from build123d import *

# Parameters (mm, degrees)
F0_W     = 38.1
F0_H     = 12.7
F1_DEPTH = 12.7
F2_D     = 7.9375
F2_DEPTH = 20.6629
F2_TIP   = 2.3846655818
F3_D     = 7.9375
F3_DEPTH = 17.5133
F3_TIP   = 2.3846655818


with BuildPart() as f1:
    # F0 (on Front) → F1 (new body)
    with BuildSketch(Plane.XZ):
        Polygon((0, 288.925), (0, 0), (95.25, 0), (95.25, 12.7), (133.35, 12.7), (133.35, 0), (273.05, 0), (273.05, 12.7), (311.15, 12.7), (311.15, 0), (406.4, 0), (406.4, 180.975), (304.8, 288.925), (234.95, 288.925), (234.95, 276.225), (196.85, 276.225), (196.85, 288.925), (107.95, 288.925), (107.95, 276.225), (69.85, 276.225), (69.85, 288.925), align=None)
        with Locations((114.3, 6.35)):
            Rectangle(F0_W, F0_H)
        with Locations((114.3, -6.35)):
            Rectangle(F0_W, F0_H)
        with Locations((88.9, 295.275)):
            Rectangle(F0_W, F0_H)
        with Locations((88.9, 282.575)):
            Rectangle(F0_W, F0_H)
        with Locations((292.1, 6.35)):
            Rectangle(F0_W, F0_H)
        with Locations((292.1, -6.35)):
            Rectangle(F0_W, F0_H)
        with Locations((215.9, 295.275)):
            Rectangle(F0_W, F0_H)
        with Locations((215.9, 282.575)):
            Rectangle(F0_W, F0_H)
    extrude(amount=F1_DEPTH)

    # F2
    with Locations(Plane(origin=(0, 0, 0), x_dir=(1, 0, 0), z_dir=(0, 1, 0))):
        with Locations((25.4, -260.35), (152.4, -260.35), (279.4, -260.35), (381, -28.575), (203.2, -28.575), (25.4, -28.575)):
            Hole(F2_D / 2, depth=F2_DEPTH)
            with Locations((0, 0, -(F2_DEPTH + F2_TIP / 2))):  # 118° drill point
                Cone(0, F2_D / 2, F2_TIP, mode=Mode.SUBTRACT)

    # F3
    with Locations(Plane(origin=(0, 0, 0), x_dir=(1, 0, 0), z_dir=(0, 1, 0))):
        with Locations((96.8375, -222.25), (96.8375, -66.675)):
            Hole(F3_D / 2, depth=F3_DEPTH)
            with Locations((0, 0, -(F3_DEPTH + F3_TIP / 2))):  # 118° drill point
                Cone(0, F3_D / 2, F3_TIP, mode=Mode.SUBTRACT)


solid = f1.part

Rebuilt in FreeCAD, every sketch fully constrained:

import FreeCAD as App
import Part
import Sketcher
Q = App.Units.Quantity


def add_polygon(sketch, points):
    """Adds a closed chain of lines whose ends are joined by coincident constraints."""
    first, n = sketch.GeometryCount, len(points)
    for a, b in zip(points, points[1:] + points[:1]):
        sketch.addGeometry(Part.LineSegment(App.Vector(*a, 0), App.Vector(*b, 0)), False)
    for i in range(n):
        sketch.addConstraint(Sketcher.Constraint("Coincident", first + i, 2, first + (i + 1) % n, 1))

doc = App.newDocument("Part")
body = doc.addObject("PartDesign::Body", "Body")

# Sketch on XZ plane
sketch1 = body.newObject("Sketcher::SketchObject", "Sketch")
sketch1.AttachmentSupport = (doc.getObject("XZ_Plane"), [""])
sketch1.MapMode = "FlatFace"
add_polygon(sketch1, [(70, 289), (0, 289), (0, 0), (95, 0), (95, -13), (133, -13), (133, 0), (273, 0), (273, -13), (311, -13), (311, 0), (406, 0), (406, 181), (305, 289), (235, 289), (235, 302), (197, 302), (197, 289), (108, 289), (108, 302), (70, 302)])  # lines 0-20
sketch1.addConstraint([
    Sketcher.Constraint("Horizontal", 0),
    Sketcher.Constraint("Vertical", 1),
    Sketcher.Constraint("Horizontal", 2),
    Sketcher.Constraint("Vertical", 3),
    Sketcher.Constraint("Horizontal", 4),
    Sketcher.Constraint("Vertical", 5),
    Sketcher.Constraint("Horizontal", 6),
    Sketcher.Constraint("Vertical", 7),
    Sketcher.Constraint("Horizontal", 8),
    Sketcher.Constraint("Vertical", 9),
    Sketcher.Constraint("Horizontal", 10),
    Sketcher.Constraint("Vertical", 11),
    Sketcher.Constraint("Horizontal", 13),
    Sketcher.Constraint("Vertical", 14),
    Sketcher.Constraint("Horizontal", 15),
    Sketcher.Constraint("Vertical", 16),
    Sketcher.Constraint("Horizontal", 17),
    Sketcher.Constraint("Vertical", 18),
    Sketcher.Constraint("Horizontal", 19),
    Sketcher.Constraint("Vertical", 20),
    Sketcher.Constraint("Coincident", 1, 2, -1, 1),
    Sketcher.Constraint("PointOnObject", 5, 2, -1),
    Sketcher.Constraint("PointOnObject", 9, 2, -1),
    Sketcher.Constraint("Horizontal", 4, 2, 7, 2),
    Sketcher.Constraint("Horizontal", 0, 2, 12, 2),
    Sketcher.Constraint("Horizontal", 13, 2, 16, 2),
    Sketcher.Constraint("Horizontal", 15, 2, 18, 2),
    Sketcher.Constraint("Equal", 4, 8),
    Sketcher.Constraint("Equal", 2, 10),
    Sketcher.Constraint("Equal", 0, 13),
    Sketcher.Constraint("Equal", 8, 15),
    Sketcher.Constraint("Equal", 15, 19),
    Sketcher.Constraint("Equal", 9, 14),
    Sketcher.Constraint("DistanceX", 4, 1, 4, 2, Q("1.5 in")),
    Sketcher.Constraint("DistanceX", 6, 1, 6, 2, Q("5.5 in")),
    Sketcher.Constraint("DistanceX", 17, 2, 17, 1, Q("3.5 in")),
    Sketcher.Constraint("DistanceY", 3, 2, 3, 1, Q("0.5 in")),
    Sketcher.Constraint("DistanceX", -1, 1, 10, 2, Q("16 in")),
    Sketcher.Constraint("DistanceX", -1, 1, 12, 2, Q("12 in")),
    Sketcher.Constraint("DistanceY", 1, 2, 1, 1, Q("11.375 in")),
    Sketcher.Constraint("DistanceY", 11, 1, 11, 2, Q("7.125 in")),
])
pad1 = body.newObject("PartDesign::Pad", "Pad")
pad1.Profile = sketch1
pad1.Length = Q("0.5 in")

# Sketch on XZ plane
sketch2 = body.newObject("Sketcher::SketchObject", "Sketch001")
sketch2.AttachmentSupport = (doc.getObject("XZ_Plane"), [""])
sketch2.MapMode = "FlatFace"
sketch2.addGeometry([
    Part.Circle(App.Vector(25.4, 260.4, 0), App.Vector(0, 0, 1), 4),  # 0
    Part.Circle(App.Vector(152.4, 260.4, 0), App.Vector(0, 0, 1), 4),  # 1
    Part.Circle(App.Vector(279.4, 260.4, 0), App.Vector(0, 0, 1), 4),  # 2
    Part.Circle(App.Vector(381, 28.6, 0), App.Vector(0, 0, 1), 4),  # 3
    Part.Circle(App.Vector(203.2, 28.6, 0), App.Vector(0, 0, 1), 4),  # 4
    Part.Circle(App.Vector(25.4, 28.6, 0), App.Vector(0, 0, 1), 4),  # 5
], False)
sketch2.addConstraint([
    Sketcher.Constraint("Equal", 0, 1),
    Sketcher.Constraint("Equal", 1, 2),
    Sketcher.Constraint("Equal", 2, 3),
    Sketcher.Constraint("Equal", 3, 4),
    Sketcher.Constraint("Equal", 4, 5),
    Sketcher.Constraint("Horizontal", 0, 3, 1, 3),
    Sketcher.Constraint("Horizontal", 1, 3, 2, 3),
    Sketcher.Constraint("Horizontal", 3, 3, 4, 3),
    Sketcher.Constraint("Horizontal", 4, 3, 5, 3),
    Sketcher.Constraint("Vertical", 0, 3, 5, 3),
    Sketcher.Constraint("Diameter", 0, Q("0.3125 in")),
    Sketcher.Constraint("DistanceX", -1, 1, 0, 3, Q("1 in")),
    Sketcher.Constraint("DistanceX", -1, 1, 1, 3, Q("6 in")),
    Sketcher.Constraint("DistanceX", -1, 1, 2, 3, Q("11 in")),
    Sketcher.Constraint("DistanceX", -1, 1, 3, 3, Q("15 in")),
    Sketcher.Constraint("DistanceX", -1, 1, 4, 3, Q("8 in")),
    Sketcher.Constraint("DistanceY", -1, 1, 0, 3, Q("10.25 in")),
    Sketcher.Constraint("DistanceY", -1, 1, 3, 3, Q("1.125 in")),
])
doc.recompute()
hole = body.newObject("PartDesign::Hole", "Hole")
hole.Profile = sketch2
hole.ThreadType = "None"
hole.Diameter = Q("0.3125 in")
hole.DepthType = "Dimension"
hole.Depth = Q("0.8135 in")
hole.DrillPoint = "Angled"
hole.DrillPointAngle = 118
hole.Reversed = True

# Sketch on XZ plane
sketch3 = body.newObject("Sketcher::SketchObject", "Sketch002")
sketch3.AttachmentSupport = (doc.getObject("XZ_Plane"), [""])
sketch3.MapMode = "FlatFace"
sketch3.addGeometry([
    Part.Circle(App.Vector(96.8, 222.2, 0), App.Vector(0, 0, 1), 4),
    Part.Circle(App.Vector(96.8, 66.7, 0), App.Vector(0, 0, 1), 4),
], False)
sketch3.addConstraint([
    Sketcher.Constraint("Equal", 0, 1),
    Sketcher.Constraint("Vertical", 0, 3, 1, 3),
    Sketcher.Constraint("Diameter", 0, Q("0.3125 in")),
    Sketcher.Constraint("DistanceY", -1, 1, 0, 3, Q("8.75 in")),
    Sketcher.Constraint("DistanceX", -1, 1, 0, 3, Q("3.8125 in")),
    Sketcher.Constraint("DistanceY", -1, 1, 1, 3, Q("2.625 in")),
])
doc.recompute()
hole2 = body.newObject("PartDesign::Hole", "Hole001")
hole2.Profile = sketch3
hole2.ThreadType = "None"
hole2.Diameter = Q("0.3125 in")
hole2.DepthType = "Dimension"
hole2.Depth = Q("0.6895 in")
hole2.DrillPoint = "Angled"
hole2.DrillPointAngle = 118
hole2.Reversed = True

doc.recompute()
